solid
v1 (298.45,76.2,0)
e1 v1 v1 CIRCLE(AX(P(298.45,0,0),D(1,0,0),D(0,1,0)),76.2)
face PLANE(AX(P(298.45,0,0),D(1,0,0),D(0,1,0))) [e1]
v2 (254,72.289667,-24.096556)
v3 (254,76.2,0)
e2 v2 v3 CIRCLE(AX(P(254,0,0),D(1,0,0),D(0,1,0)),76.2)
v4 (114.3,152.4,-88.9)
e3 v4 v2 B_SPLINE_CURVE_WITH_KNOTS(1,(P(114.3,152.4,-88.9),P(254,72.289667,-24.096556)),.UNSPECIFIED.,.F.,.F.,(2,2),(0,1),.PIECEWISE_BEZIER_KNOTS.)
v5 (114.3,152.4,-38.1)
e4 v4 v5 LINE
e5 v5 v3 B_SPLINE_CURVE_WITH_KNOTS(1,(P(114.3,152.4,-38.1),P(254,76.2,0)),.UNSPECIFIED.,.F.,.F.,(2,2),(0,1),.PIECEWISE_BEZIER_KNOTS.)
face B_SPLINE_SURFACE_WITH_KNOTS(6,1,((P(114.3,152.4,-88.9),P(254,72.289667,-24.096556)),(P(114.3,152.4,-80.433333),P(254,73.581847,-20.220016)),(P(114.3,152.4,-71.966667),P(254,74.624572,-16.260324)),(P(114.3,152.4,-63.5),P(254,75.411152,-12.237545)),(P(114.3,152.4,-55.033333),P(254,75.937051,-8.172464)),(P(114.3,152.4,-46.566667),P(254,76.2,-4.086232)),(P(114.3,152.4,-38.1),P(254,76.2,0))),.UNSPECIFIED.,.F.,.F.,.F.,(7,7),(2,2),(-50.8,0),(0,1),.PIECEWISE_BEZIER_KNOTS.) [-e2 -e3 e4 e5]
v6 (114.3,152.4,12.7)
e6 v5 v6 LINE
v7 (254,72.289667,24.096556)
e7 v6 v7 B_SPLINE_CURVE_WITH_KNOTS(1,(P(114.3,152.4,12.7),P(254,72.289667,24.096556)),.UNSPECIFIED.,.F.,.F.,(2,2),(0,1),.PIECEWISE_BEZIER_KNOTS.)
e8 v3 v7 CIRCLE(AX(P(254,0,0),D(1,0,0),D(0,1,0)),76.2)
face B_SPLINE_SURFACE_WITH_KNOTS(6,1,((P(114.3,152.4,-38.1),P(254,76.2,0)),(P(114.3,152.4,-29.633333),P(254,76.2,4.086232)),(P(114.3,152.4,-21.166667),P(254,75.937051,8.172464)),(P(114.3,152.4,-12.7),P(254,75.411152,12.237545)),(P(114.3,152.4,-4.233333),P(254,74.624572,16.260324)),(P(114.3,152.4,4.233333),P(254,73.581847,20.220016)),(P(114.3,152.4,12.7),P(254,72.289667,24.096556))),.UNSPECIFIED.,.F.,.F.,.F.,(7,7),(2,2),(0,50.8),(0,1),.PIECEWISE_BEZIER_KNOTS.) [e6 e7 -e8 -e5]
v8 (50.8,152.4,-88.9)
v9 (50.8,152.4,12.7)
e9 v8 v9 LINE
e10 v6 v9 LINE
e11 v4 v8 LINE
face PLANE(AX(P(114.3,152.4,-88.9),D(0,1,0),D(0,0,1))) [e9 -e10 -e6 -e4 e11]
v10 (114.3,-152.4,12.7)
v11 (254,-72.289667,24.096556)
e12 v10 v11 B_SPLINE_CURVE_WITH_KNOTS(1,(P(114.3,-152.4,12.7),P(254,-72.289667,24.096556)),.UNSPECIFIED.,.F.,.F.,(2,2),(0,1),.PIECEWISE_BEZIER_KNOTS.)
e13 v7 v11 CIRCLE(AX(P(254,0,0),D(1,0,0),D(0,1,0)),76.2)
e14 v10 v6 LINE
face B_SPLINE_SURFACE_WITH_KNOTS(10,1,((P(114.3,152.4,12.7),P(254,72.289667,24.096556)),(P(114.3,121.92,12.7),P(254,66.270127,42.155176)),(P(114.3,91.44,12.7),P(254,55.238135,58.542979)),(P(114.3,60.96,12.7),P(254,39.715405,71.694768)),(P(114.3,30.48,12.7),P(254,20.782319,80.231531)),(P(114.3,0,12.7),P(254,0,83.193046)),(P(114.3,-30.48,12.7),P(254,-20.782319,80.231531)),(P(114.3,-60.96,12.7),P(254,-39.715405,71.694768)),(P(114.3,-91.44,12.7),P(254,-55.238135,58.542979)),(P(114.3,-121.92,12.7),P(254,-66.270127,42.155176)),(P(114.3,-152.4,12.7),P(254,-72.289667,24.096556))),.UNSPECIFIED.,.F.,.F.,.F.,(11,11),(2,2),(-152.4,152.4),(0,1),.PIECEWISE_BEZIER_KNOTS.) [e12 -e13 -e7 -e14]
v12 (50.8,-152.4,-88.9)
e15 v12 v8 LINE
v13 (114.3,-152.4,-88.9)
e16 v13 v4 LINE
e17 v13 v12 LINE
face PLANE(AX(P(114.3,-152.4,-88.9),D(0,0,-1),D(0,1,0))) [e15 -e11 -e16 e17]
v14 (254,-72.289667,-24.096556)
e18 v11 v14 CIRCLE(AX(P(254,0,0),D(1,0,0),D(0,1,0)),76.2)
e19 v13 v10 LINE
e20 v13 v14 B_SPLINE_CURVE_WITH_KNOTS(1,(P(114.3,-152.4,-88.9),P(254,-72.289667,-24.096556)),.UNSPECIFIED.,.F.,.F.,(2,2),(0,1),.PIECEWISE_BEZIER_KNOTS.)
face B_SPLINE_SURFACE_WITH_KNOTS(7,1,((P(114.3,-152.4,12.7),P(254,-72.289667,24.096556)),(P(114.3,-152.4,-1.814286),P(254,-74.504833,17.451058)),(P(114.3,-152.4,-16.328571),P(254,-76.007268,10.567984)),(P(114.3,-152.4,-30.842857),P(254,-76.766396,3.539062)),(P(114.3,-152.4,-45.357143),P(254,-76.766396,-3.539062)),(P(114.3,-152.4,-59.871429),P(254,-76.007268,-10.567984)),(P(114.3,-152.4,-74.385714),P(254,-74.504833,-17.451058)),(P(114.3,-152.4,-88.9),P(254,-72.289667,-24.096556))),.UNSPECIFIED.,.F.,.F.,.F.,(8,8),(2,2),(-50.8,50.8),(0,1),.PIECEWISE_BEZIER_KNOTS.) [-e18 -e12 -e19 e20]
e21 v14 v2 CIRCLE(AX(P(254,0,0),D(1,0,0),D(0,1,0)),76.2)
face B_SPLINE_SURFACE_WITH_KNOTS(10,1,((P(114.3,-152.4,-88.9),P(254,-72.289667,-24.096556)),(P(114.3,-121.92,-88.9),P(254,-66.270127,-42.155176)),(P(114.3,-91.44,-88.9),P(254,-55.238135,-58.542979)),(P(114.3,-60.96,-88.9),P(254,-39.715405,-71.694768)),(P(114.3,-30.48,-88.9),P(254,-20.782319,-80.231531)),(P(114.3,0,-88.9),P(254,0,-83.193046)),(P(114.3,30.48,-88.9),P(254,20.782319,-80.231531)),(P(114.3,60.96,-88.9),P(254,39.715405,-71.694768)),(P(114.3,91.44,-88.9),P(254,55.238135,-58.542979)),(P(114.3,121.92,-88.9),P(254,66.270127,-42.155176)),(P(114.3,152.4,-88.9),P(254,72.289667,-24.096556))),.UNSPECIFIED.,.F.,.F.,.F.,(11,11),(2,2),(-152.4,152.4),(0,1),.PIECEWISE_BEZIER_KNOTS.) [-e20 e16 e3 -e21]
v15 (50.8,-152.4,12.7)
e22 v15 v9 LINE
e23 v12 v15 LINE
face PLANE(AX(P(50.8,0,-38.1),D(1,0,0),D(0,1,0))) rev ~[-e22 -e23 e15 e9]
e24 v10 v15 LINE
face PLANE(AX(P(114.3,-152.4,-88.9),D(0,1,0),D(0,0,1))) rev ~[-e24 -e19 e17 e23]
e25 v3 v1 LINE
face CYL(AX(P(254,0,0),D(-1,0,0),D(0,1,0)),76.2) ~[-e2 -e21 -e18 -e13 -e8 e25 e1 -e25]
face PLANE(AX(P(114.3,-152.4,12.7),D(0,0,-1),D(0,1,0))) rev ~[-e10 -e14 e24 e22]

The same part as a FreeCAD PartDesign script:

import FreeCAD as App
import Part
import Sketcher
from FreeCAD import Vector
Q = App.Units.Quantity


def add_polygon(sketch, points):
    """Adds a closed chain of lines whose ends are joined by coincident constraints."""
    first, n = sketch.GeometryCount, len(points)
    for a, b in zip(points, points[1:] + points[:1]):
        sketch.addGeometry(Part.LineSegment(App.Vector(*a, 0), App.Vector(*b, 0)), False)
    for i in range(n):
        sketch.addConstraint(Sketcher.Constraint("Coincident", first + i, 2, first + (i + 1) % n, 1))

doc = App.newDocument("Part")
params = doc.addObject("Spreadsheet::Sheet", "Params")
for row, (alias, value) in enumerate([
    ("sketch1_diameter", "6 in"),
    ("pad1_length", "1.75 in"),
    ("sketch2_width", "12 in"),
    ("sketch2_height", "4 in"),
    ("sketch3_diameter", "6 in"),
    ("sketch4_width", "12 in"),
    ("sketch4_height", "4 in"),
    ("pad2_length", "2.5 in"),
], start=1):
    params.set(f"A{row}", alias)
    params.set(f"B{row}", "=" + value)
    params.setAlias(f"B{row}", alias)

body = doc.addObject("PartDesign::Body", "Body")

# Sketch on YZ plane
sketch1 = body.newObject("Sketcher::SketchObject", "Sketch")
sketch1.AttachmentSupport = (doc.getObject("YZ_Plane"), [""])
sketch1.MapMode = "FlatFace"
sketch1.AttachmentOffset = App.Placement(Vector(0, 0, 10 * 25.4), App.Rotation())
sketch1.addGeometry(Part.Circle(Vector(0, 0, 0), Vector(0, 0, 1), 76.2), False)
sketch1.addConstraint(Sketcher.Constraint("Coincident", 0, 3, -1, 1))
sketch1.addConstraint(Sketcher.Constraint("Diameter", 0, Q("6 in")))
sketch1.setExpression("Constraints[1]", "Params.sketch1_diameter")
pad1 = body.newObject("PartDesign::Pad", "Pad")
pad1.Profile = sketch1
pad1.setExpression("Length", "Params.pad1_length")

# Sketch on YZ plane
sketch2 = body.newObject("Sketcher::SketchObject", "Sketch001")
sketch2.AttachmentSupport = (doc.getObject("YZ_Plane"), [""])
sketch2.MapMode = "FlatFace"
sketch2.AttachmentOffset = App.Placement(Vector(0, 0, 4.5 * 25.4), App.Rotation())
add_polygon(sketch2, [(-152.4, 12.7), (-152.4, -88.9), (152.4, -88.9), (152.4, 12.7)])  # lines 0-3
sketch2.addConstraint(Sketcher.Constraint("Vertical", 0))
sketch2.addConstraint(Sketcher.Constraint("Horizontal", 1))
sketch2.addConstraint(Sketcher.Constraint("Vertical", 2))
sketch2.addConstraint(Sketcher.Constraint("Horizontal", 3))
sketch2.addConstraint(Sketcher.Constraint("DistanceX", 1, 1, 1, 2, Q("12 in")))
sketch2.addConstraint(Sketcher.Constraint("DistanceY", 0, 2, 0, 1, Q("4 in")))
sketch2.addConstraint(Sketcher.Constraint("DistanceX", 0, 2, -1, 1, Q("6 in")))
sketch2.addConstraint(Sketcher.Constraint("DistanceY", 0, 2, -1, 1, Q("3.5 in")))
sketch2.setExpression("Constraints[8]", "Params.sketch2_width")
sketch2.setExpression("Constraints[9]", "Params.sketch2_height")

# Sketch on YZ plane
sketch3 = body.newObject("Sketcher::SketchObject", "Sketch002")
sketch3.AttachmentSupport = (doc.getObject("YZ_Plane"), [""])
sketch3.MapMode = "FlatFace"
sketch3.AttachmentOffset = App.Placement(Vector(0, 0, 10 * 25.4), App.Rotation())
sketch3.addGeometry(Part.Circle(Vector(0, 0, 0), Vector(0, 0, 1), 76.2), False)
sketch3.addConstraint(Sketcher.Constraint("Coincident", 0, 3, -1, 1))
sketch3.addConstraint(Sketcher.Constraint("Diameter", 0, Q("6 in")))
sketch3.setExpression("Constraints[1]", "Params.sketch3_diameter")

additiveloft = body.newObject("PartDesign::AdditiveLoft", "AdditiveLoft")
additiveloft.Profile = sketch2
additiveloft.Sections = [sketch3]

# Sketch on YZ plane
sketch4 = body.newObject("Sketcher::SketchObject", "Sketch003")
sketch4.AttachmentSupport = (doc.getObject("YZ_Plane"), [""])
sketch4.MapMode = "FlatFace"
sketch4.AttachmentOffset = App.Placement(Vector(0, 0, 4.5 * 25.4), App.Rotation())
add_polygon(sketch4, [(-152.4, 12.7), (-152.4, -88.9), (152.4, -88.9), (152.4, 12.7)])  # lines 0-3
sketch4.addConstraint(Sketcher.Constraint("Vertical", 0))
sketch4.addConstraint(Sketcher.Constraint("Horizontal", 1))
sketch4.addConstraint(Sketcher.Constraint("Vertical", 2))
sketch4.addConstraint(Sketcher.Constraint("Horizontal", 3))
sketch4.addConstraint(Sketcher.Constraint("DistanceX", 1, 1, 1, 2, Q("12 in")))
sketch4.addConstraint(Sketcher.Constraint("DistanceY", 0, 2, 0, 1, Q("4 in")))
sketch4.addConstraint(Sketcher.Constraint("DistanceX", 0, 2, -1, 1, Q("6 in")))
sketch4.addConstraint(Sketcher.Constraint("DistanceY", 0, 2, -1, 1, Q("3.5 in")))
sketch4.setExpression("Constraints[8]", "Params.sketch4_width")
sketch4.setExpression("Constraints[9]", "Params.sketch4_height")
pad2 = body.newObject("PartDesign::Pad", "Pad001")
pad2.Profile = sketch4
pad2.setExpression("Length", "Params.pad2_length")
pad2.Reversed = True

doc.recompute()
